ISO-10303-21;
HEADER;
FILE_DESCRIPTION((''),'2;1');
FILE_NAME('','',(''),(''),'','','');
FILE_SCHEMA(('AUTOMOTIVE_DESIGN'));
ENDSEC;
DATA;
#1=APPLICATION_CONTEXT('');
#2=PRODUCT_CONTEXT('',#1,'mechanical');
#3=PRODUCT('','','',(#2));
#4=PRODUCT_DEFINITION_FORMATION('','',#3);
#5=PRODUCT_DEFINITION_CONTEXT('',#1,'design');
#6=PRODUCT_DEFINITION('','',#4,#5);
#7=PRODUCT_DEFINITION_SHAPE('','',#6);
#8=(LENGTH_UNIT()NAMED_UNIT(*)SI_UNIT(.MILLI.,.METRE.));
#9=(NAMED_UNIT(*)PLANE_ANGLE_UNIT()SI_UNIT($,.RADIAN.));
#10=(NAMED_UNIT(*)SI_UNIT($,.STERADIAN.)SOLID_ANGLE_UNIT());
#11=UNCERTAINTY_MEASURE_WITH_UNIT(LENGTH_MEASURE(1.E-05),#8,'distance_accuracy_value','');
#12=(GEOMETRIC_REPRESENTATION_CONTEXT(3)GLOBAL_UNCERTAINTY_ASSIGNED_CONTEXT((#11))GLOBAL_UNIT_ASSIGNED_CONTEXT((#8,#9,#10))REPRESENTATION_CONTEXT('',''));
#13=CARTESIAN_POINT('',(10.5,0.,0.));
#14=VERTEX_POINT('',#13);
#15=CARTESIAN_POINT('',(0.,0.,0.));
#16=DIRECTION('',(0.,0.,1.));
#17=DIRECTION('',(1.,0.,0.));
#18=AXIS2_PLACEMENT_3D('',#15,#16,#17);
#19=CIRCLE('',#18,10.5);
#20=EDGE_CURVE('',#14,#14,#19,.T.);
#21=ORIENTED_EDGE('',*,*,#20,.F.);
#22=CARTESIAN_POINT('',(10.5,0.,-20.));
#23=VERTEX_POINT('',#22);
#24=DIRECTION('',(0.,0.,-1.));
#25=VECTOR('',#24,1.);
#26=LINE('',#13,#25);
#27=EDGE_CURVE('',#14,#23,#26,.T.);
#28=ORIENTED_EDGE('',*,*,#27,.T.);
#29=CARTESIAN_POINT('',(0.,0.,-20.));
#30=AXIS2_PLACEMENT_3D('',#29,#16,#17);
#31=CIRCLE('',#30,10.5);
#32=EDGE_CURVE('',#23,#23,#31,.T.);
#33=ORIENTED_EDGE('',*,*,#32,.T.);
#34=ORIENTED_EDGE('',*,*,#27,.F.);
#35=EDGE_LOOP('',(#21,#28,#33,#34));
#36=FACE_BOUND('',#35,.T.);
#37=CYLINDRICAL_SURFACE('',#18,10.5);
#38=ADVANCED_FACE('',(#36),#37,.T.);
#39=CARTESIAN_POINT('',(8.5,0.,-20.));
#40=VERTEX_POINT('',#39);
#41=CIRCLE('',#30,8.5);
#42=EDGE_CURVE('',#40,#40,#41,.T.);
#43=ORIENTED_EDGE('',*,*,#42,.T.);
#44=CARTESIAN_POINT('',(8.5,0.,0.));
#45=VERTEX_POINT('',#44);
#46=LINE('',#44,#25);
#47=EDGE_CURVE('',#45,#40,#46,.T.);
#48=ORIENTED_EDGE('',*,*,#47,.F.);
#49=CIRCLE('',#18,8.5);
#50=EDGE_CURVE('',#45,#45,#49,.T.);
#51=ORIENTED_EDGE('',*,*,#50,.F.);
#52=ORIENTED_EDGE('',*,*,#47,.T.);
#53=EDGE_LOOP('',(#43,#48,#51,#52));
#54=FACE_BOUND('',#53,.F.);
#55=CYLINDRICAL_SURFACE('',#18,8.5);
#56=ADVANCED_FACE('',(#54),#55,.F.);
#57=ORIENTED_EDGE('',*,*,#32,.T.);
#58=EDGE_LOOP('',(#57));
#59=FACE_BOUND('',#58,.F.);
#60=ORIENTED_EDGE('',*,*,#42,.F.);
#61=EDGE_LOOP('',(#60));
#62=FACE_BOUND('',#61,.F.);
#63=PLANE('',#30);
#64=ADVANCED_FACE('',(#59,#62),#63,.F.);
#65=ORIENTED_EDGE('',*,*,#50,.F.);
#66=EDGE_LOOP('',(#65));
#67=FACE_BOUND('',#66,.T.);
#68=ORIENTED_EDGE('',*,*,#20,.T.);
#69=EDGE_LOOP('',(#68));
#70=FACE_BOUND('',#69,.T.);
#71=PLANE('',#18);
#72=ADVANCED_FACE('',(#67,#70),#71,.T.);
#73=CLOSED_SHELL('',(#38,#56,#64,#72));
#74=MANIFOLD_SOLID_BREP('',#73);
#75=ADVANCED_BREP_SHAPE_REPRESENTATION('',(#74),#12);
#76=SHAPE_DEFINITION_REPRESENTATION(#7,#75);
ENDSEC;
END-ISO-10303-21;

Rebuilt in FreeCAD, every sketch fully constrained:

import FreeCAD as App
import Part
import Sketcher
Q = App.Units.Quantity

doc = App.newDocument("Part")
params = doc.addObject("Spreadsheet::Sheet", "Params")
for row, (alias, value) in enumerate([
    ("sketch1_diameter", "21 mm"),
    ("sketch1_diameter2", "17 mm"),
    ("pad1_length", "20 mm"),
], start=1):
    params.set(f"A{row}", alias)
    params.set(f"B{row}", "=" + value)
    params.setAlias(f"B{row}", alias)

body = doc.addObject("PartDesign::Body", "Body")

# Sketch on XY plane
sketch1 = doc.addObject("Sketcher::SketchObject", "Sketch")
body.addObject(sketch1)
sketch1.AttachmentSupport = (doc.XY_Plane, [""])
sketch1.MapMode = "FlatFace"
sketch1.addGeometry([
    Part.Circle(App.Vector(0, 0, 0), App.Vector(0, 0, 1), 10),
    Part.Circle(App.Vector(0, 0, 0), App.Vector(0, 0, 1), 8),
], False)
sketch1.addConstraint([
    Sketcher.Constraint("Coincident", 0, 3, -1, 1),
    Sketcher.Constraint("Coincident", 1, 3, -1, 1),
    Sketcher.Constraint("Diameter", 0, Q("21 mm")),
    Sketcher.Constraint("Diameter", 1, Q("17 mm")),
])
sketch1.setExpression("Constraints[2]", "Params.sketch1_diameter")
sketch1.setExpression("Constraints[3]", "Params.sketch1_diameter2")
pad1 = doc.addObject("PartDesign::Pad", "Pad")
body.addObject(pad1)
pad1.Profile = sketch1
pad1.setExpression("Length", "Params.pad1_length")
pad1.Reversed = True

doc.recompute()
